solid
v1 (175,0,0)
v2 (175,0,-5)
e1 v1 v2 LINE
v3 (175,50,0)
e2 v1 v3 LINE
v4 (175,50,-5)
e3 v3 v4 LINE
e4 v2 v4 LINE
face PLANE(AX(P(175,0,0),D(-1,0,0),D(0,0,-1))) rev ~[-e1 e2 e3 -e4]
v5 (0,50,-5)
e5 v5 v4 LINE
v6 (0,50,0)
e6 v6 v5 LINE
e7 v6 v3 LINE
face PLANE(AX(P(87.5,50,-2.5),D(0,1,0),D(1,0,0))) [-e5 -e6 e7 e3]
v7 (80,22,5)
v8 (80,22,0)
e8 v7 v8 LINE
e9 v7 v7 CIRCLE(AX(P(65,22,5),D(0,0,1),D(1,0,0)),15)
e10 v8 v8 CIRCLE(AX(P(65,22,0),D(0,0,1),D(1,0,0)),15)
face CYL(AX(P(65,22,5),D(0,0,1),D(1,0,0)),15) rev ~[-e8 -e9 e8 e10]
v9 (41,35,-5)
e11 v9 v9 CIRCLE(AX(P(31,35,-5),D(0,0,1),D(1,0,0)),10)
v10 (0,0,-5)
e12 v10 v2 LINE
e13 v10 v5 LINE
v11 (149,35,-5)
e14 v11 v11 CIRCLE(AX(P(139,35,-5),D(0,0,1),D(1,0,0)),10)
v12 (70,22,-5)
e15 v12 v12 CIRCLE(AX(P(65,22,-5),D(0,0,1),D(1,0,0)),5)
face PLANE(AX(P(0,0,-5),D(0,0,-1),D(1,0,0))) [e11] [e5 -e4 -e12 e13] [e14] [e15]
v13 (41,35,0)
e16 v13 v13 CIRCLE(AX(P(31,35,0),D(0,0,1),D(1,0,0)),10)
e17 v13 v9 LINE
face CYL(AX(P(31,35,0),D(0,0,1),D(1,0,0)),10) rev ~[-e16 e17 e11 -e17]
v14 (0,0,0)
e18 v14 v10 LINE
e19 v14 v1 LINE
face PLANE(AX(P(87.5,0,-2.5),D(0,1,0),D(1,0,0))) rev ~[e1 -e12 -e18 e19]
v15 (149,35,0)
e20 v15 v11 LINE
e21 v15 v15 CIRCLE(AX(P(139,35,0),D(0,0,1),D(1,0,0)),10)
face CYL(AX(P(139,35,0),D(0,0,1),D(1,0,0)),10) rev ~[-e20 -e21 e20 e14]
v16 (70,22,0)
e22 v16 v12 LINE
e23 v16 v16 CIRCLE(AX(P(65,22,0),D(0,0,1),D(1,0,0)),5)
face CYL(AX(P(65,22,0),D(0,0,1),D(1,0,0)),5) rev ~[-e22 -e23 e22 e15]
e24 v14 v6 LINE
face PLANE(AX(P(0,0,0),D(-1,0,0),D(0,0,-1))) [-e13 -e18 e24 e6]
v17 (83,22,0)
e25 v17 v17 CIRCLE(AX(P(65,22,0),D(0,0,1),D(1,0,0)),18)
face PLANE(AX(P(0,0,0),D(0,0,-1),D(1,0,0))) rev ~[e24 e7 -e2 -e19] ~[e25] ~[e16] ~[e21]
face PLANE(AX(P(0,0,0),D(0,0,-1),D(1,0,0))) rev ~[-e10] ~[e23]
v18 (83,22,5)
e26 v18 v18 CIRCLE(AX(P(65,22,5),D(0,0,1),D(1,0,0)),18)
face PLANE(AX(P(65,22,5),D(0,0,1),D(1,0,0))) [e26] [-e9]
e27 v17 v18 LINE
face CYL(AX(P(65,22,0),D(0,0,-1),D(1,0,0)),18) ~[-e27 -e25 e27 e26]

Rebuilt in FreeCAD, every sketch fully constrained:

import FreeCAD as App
import Part
import Sketcher

V = App.Vector

doc = App.newDocument("Part")
body = doc.addObject("PartDesign::Body", "Body")

# Sketch on XY plane
sketch1 = body.newObject("Sketcher::SketchObject", "Sketch")
sketch1.AttachmentSupport = (doc.getObject("XY_Plane"), [""])
sketch1.MapMode = "FlatFace"
sketch1.addGeometry([
    Part.LineSegment(V(0, 5, 0), V(0, 0, 0)),
    Part.LineSegment(V(0, 0, 0), V(175, 0, 0)),
    Part.LineSegment(V(175, 0, 0), V(175, 5, 0)),
    Part.LineSegment(V(175, 5, 0), V(0, 5, 0)),
], False)
sketch1.addConstraint([
    Sketcher.Constraint("Coincident", 0, 2, 1, 1),
    Sketcher.Constraint("Coincident", 1, 2, 2, 1),
    Sketcher.Constraint("Coincident", 2, 2, 3, 1),
    Sketcher.Constraint("Coincident", 3, 2, 0, 1),
    Sketcher.Constraint("Vertical", 0),
    Sketcher.Constraint("Horizontal", 1),
    Sketcher.Constraint("Vertical", 2),
    Sketcher.Constraint("Horizontal", 3),
    Sketcher.Constraint("Coincident", 0, 2, -1, 1),
    Sketcher.Constraint("DistanceX", 1, 1, 1, 2, 175.0),
    Sketcher.Constraint("DistanceY", 0, 2, 0, 1, 5.0),
])
pad1 = body.newObject("PartDesign::Pad", "Pad")
pad1.Profile = sketch1
pad1.Length = 50

# Sketch on XZ plane
sketch2 = body.newObject("Sketcher::SketchObject", "Sketch001")
sketch2.AttachmentSupport = (doc.getObject("XZ_Plane"), [""])
sketch2.MapMode = "FlatFace"
sketch2.addGeometry([
    Part.Circle(V(31, 35, 0), V(0, 0, 1), 10),
    Part.Circle(V(139, 35, 0), V(0, 0, 1), 10),
], False)
sketch2.addConstraint([
    Sketcher.Constraint("Equal", 0, 1),
    Sketcher.Constraint("Horizontal", 0, 3, 1, 3),
    Sketcher.Constraint("Diameter", 0, 20.0),
    Sketcher.Constraint("DistanceX", -1, 1, 0, 3, 31.0),
    Sketcher.Constraint("DistanceY", -1, 1, 0, 3, 35.0),
    Sketcher.Constraint("DistanceX", -1, 1, 1, 3, 139.0),
])
pocket1 = body.newObject("PartDesign::Pocket", "Pocket")
pocket1.Profile = sketch2
pocket1.Type = "ThroughAll"

# Sketch on XZ plane
sketch3 = body.newObject("Sketcher::SketchObject", "Sketch002")
sketch3.AttachmentSupport = (doc.getObject("XZ_Plane"), [""])
sketch3.MapMode = "FlatFace"
sketch3.addGeometry(Part.Circle(V(65, 22, 0), V(0, 0, 1), 5), False)
sketch3.addConstraint([
    Sketcher.Constraint("Diameter", 0, 10.0),
    Sketcher.Constraint("DistanceX", -1, 1, 0, 3, 65.0),
    Sketcher.Constraint("DistanceY", -1, 1, 0, 3, 22.0),
])
pocket2 = body.newObject("PartDesign::Pocket", "Pocket001")
pocket2.Profile = sketch3
pocket2.Type = "ThroughAll"
body2 = doc.addObject("PartDesign::Body", "Body001")

# Sketch on XZ plane
sketch4 = body2.newObject("Sketcher::SketchObject", "Sketch003")
sketch4.AttachmentSupport = (doc.getObject("XZ_Plane001"), [""])
sketch4.MapMode = "FlatFace"
sketch4.addGeometry(Part.Circle(V(65, 22, 0), V(0, 0, 1), 18), False)
sketch4.addConstraint([
    Sketcher.Constraint("Diameter", 0, 36.0),
    Sketcher.Constraint("DistanceX", -1, 1, 0, 3, 65.0),
    Sketcher.Constraint("DistanceY", -1, 1, 0, 3, 22.0),
])
pad2 = body2.newObject("PartDesign::Pad", "Pad001")
pad2.Profile = sketch4
pad2.Length = 5

# Sketch on XZ plane
sketch5 = body2.newObject("Sketcher::SketchObject", "Sketch004")
sketch5.AttachmentSupport = (doc.getObject("XZ_Plane001"), [""])
sketch5.MapMode = "FlatFace"
sketch5.AttachmentOffset = App.Placement(V(0, 0, 5), App.Rotation())
sketch5.addGeometry(Part.Circle(V(65, 22, 0), V(0, 0, 1), 15), False)
sketch5.addConstraint([
    Sketcher.Constraint("Diameter", 0, 30.0),
    Sketcher.Constraint("DistanceX", -1, 1, 0, 3, 65.0),
    Sketcher.Constraint("DistanceY", -1, 1, 0, 3, 22.0),
])
pocket3 = body2.newObject("PartDesign::Pocket", "Pocket002")
pocket3.Profile = sketch5
pocket3.Type = "ThroughAll"
doc.recompute()

boolean = body2.newObject("PartDesign::Boolean", "Boolean")
boolean.Type = "Fuse"
boolean.addObjects([body])
body3 = doc.addObject("PartDesign::Body", "Body002")
doc.recompute()

body2.Placement = App.Placement(V(0, 0, 0), App.Rotation(V(1, 0, 0), 270))
boolean2 = body3.newObject("PartDesign::Boolean", "Boolean001")
boolean2.Type = "Fuse"
boolean2.addObjects([body2])

doc.recompute()
